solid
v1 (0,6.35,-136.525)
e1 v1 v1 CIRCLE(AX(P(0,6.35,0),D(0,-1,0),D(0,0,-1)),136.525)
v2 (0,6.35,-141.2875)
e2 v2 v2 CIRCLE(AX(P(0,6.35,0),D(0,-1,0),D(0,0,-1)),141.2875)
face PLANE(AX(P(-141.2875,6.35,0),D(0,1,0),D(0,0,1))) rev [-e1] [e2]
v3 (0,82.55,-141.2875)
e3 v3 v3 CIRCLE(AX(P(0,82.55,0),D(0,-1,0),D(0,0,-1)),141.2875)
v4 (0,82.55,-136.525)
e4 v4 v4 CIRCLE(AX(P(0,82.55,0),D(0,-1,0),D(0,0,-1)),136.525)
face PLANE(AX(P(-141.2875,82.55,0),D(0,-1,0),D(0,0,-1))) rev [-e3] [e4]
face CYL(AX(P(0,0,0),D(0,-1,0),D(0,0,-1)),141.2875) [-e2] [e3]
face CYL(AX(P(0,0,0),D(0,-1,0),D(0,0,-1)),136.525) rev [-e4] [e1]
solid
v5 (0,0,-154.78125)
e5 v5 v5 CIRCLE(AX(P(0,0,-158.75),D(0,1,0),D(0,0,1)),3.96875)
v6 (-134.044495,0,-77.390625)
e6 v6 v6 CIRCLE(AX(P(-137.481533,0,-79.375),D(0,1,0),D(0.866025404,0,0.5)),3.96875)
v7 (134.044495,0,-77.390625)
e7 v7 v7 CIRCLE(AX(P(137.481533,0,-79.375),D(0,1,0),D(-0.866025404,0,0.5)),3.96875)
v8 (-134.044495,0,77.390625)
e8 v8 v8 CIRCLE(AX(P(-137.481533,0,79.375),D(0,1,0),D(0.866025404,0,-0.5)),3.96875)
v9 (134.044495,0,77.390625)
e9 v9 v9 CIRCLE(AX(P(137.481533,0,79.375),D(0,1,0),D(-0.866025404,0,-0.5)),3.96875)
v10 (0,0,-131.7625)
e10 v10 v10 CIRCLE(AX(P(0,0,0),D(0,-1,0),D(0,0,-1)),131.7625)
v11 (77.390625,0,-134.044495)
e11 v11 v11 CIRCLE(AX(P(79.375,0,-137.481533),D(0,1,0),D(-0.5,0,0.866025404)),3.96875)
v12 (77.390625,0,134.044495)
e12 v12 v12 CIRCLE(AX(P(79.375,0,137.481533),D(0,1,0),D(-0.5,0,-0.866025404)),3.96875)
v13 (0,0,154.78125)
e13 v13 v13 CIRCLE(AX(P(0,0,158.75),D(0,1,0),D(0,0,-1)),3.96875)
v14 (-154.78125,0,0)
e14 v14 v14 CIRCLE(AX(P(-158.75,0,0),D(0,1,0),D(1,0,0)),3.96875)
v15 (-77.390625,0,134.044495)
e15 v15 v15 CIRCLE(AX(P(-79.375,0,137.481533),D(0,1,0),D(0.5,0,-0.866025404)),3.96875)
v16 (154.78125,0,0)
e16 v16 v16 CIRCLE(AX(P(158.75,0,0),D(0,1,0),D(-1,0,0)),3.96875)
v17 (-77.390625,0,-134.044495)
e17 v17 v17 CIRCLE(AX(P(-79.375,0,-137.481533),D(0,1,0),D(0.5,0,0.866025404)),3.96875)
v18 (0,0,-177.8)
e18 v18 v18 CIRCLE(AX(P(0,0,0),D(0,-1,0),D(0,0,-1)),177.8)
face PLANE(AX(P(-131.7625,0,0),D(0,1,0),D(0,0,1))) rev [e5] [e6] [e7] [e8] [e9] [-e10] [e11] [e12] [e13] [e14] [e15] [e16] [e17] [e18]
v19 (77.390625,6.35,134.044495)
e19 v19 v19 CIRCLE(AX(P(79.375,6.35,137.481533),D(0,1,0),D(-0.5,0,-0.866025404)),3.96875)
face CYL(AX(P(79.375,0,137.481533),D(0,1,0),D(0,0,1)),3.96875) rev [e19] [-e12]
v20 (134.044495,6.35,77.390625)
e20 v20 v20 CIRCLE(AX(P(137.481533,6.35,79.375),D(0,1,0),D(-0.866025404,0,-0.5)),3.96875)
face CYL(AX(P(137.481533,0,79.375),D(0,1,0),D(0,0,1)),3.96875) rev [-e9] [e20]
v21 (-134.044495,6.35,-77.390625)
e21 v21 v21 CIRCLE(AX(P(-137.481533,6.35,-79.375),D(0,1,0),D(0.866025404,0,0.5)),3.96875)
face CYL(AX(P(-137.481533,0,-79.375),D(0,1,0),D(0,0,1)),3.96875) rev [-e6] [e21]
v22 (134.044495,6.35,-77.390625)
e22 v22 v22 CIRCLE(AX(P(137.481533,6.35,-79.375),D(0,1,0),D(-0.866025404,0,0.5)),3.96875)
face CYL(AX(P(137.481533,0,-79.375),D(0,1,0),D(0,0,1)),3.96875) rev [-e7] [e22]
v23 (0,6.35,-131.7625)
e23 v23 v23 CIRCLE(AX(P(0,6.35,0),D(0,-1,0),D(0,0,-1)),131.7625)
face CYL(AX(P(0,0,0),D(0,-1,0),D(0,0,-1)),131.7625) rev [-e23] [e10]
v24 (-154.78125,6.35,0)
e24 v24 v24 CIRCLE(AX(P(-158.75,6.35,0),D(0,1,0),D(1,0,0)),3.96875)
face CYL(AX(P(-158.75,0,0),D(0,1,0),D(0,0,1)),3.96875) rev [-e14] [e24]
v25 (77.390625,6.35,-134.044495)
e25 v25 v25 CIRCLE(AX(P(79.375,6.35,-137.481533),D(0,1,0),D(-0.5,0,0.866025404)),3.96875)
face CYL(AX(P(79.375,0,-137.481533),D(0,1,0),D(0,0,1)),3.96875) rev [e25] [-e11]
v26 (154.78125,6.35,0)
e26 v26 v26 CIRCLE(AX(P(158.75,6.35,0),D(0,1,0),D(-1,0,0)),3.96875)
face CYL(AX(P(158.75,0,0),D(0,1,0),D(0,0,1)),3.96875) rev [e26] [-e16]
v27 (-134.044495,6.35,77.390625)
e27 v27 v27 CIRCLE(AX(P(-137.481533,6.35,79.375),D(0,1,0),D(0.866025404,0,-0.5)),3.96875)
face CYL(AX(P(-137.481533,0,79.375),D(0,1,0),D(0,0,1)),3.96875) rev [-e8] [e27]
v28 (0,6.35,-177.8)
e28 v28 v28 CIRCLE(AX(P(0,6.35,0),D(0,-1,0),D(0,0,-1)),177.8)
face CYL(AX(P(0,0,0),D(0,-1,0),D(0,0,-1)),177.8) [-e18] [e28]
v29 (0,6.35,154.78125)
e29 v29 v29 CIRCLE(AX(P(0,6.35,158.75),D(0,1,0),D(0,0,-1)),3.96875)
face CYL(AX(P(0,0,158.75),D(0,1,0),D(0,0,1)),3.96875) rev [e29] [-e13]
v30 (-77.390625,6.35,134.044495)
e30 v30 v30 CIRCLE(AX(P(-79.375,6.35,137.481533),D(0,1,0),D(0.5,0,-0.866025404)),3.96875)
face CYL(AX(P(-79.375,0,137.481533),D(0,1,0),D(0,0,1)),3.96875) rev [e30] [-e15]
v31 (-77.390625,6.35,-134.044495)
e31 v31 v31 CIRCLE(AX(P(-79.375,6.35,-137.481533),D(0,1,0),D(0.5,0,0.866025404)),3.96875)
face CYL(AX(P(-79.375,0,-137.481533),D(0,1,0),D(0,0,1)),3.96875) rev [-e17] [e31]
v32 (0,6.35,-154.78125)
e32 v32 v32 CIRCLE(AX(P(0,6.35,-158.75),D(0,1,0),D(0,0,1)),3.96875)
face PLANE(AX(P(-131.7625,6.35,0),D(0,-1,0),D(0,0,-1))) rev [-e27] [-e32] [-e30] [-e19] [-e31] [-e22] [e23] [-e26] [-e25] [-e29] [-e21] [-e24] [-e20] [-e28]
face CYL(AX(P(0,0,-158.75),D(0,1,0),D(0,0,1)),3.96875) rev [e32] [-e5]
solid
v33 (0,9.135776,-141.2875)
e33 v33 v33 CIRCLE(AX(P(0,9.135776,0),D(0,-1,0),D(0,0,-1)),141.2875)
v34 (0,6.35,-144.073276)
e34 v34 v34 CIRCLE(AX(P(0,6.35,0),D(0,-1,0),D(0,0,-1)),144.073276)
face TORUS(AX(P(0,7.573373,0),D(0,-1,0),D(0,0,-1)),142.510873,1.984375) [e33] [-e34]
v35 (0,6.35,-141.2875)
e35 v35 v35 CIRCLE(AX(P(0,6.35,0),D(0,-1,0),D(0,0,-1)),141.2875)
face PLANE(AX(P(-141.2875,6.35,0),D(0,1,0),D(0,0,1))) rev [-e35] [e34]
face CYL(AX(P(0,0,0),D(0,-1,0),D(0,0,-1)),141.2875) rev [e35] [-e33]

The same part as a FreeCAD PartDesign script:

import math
import FreeCAD as App
import Part
import Sketcher
from FreeCAD import Vector
Q = App.Units.Quantity


def add_polygon(sketch, points):
    """Adds a closed chain of lines whose ends are joined by coincident constraints."""
    first, n = sketch.GeometryCount, len(points)
    for a, b in zip(points, points[1:] + points[:1]):
        sketch.addGeometry(Part.LineSegment(App.Vector(*a, 0), App.Vector(*b, 0)), False)
    for i in range(n):
        sketch.addConstraint(Sketcher.Constraint("Coincident", first + i, 2, first + (i + 1) % n, 1))

doc = App.newDocument("Part")
params = doc.addObject("Spreadsheet::Sheet", "Params")
for row, (alias, value) in enumerate([
    ("sketch1_height", "0.25 in"),
    ("sketch1_width", "1.8125 in"),
    ("revolution_angle", "360 deg"),
    ("sketch2_diameter", "0.3125 in"),
    ("sketch3_height", "3 in"),
    ("sketch3_width", "0.1875 in"),
    ("revolution2_angle", "360 deg"),
    ("sketch4_radius", "0.078125 in"),
    ("revolution3_angle", "360 deg"),
], start=1):
    params.set(f"A{row}", alias)
    params.set(f"B{row}", "=" + value)
    params.setAlias(f"B{row}", alias)

body = doc.addObject("PartDesign::Body", "Body")

# Sketch on XY plane
sketch1 = body.newObject("Sketcher::SketchObject", "Sketch")
sketch1.AttachmentSupport = (doc.getObject("XY_Plane"), [""])
sketch1.MapMode = "FlatFace"
add_polygon(sketch1, [(-178, 6), (-178, 0), (-132, 0), (-132, 6)])  # lines 0-3
sketch1.addConstraint(Sketcher.Constraint("Vertical", 0))
sketch1.addConstraint(Sketcher.Constraint("Horizontal", 1))
sketch1.addConstraint(Sketcher.Constraint("Vertical", 2))
sketch1.addConstraint(Sketcher.Constraint("Horizontal", 3))
sketch1.addConstraint(Sketcher.Constraint("PointOnObject", 0, 2, -1))
sketch1.addConstraint(Sketcher.Constraint("DistanceX", 0, 2, -1, 1, Q("7 in")))
sketch1.addConstraint(Sketcher.Constraint("DistanceY", 0, 2, 0, 1, Q("0.25 in")))
sketch1.addConstraint(Sketcher.Constraint("DistanceX", 1, 1, 1, 2, Q("1.8125 in")))
sketch1.setExpression("Constraints[10]", "Params.sketch1_height")
sketch1.setExpression("Constraints[11]", "Params.sketch1_width")
revolution = body.newObject("PartDesign::Revolution", "Revolution")
revolution.Profile = sketch1
revolution.ReferenceAxis = (sketch1, ["V_Axis"])
revolution.setExpression("Angle", "Params.revolution_angle")

# Sketch on XZ plane
sketch2 = body.newObject("Sketcher::SketchObject", "Sketch001")
sketch2.AttachmentSupport = (doc.getObject("XZ_Plane"), [""])
sketch2.MapMode = "FlatFace"
sketch2.AttachmentOffset = App.Placement(Vector(0, 0, -0.25 * 25.4), App.Rotation())
sketch2.addGeometry(Part.Circle(Vector(0, -158.8, 0), Vector(0, 0, 1), 4), False)
sketch2.addConstraint(Sketcher.Constraint("PointOnObject", 0, 3, -2))
sketch2.addConstraint(Sketcher.Constraint("Diameter", 0, Q("0.3125 in")))
sketch2.addConstraint(Sketcher.Constraint("DistanceY", 0, 3, -1, 1, Q("6.25 in")))
sketch2.setExpression("Constraints[1]", "Params.sketch2_diameter")
pocket1 = body.newObject("PartDesign::Pocket", "Pocket")
pocket1.Profile = sketch2
pocket1.Type = "ThroughAll"
pocket1.Reversed = True
doc.recompute()

polarpattern = body.newObject("PartDesign::PolarPattern", "PolarPattern")
polarpattern.Originals = [pocket1]
polarpattern.Axis = (doc.getObject("Y_Axis"), [""])
polarpattern.Angle = 360
polarpattern.Occurrences = 12
body.Tip = polarpattern
body2 = doc.addObject("PartDesign::Body", "Body001")

# Sketch on XY plane
sketch3 = body2.newObject("Sketcher::SketchObject", "Sketch002")
sketch3.AttachmentSupport = (doc.getObject("XY_Plane001"), [""])
sketch3.MapMode = "FlatFace"
add_polygon(sketch3, [(-141.3, 82.5), (-141.3, 6.3), (-136.5, 6.3), (-136.5, 82.5)])  # lines 0-3
sketch3.addConstraint(Sketcher.Constraint("Vertical", 0))
sketch3.addConstraint(Sketcher.Constraint("Horizontal", 1))
sketch3.addConstraint(Sketcher.Constraint("Vertical", 2))
sketch3.addConstraint(Sketcher.Constraint("Horizontal", 3))
sketch3.addConstraint(Sketcher.Constraint("DistanceY", 0, 2, 0, 1, Q("3 in")))
sketch3.addConstraint(Sketcher.Constraint("DistanceX", 1, 1, 1, 2, Q("0.1875 in")))
sketch3.addConstraint(Sketcher.Constraint("DistanceY", -1, 1, 0, 2, Q("0.25 in")))
sketch3.addConstraint(Sketcher.Constraint("DistanceX", 0, 2, -1, 1, Q("5.5625 in")))
sketch3.setExpression("Constraints[8]", "Params.sketch3_height")
sketch3.setExpression("Constraints[9]", "Params.sketch3_width")
revolution2 = body2.newObject("PartDesign::Revolution", "Revolution001")
revolution2.Profile = sketch3
revolution2.ReferenceAxis = (sketch3, ["V_Axis"])
revolution2.setExpression("Angle", "Params.revolution2_angle")
body3 = doc.addObject("PartDesign::Body", "Body002")

# Sketch on XY plane
sketch4 = body3.newObject("Sketcher::SketchObject", "Sketch003")
sketch4.AttachmentSupport = (doc.getObject("XY_Plane002"), [""])
sketch4.MapMode = "FlatFace"
sketch4.addGeometry(Part.LineSegment(Vector(-144.1, 6.3, 0), Vector(-141.3, 6.3, 0)), False)
sketch4.addGeometry(Part.LineSegment(Vector(-141.3, 6.3, 0), Vector(-141.3, 9.1, 0)), False)
sketch4.addGeometry(Part.ArcOfCircle(Part.Circle(Vector(-142.5, 7.6, 0), Vector(0, 0, 1), 2), math.radians(52), math.radians(218)), False)
sketch4.addConstraint(Sketcher.Constraint("Coincident", 0, 2, 1, 1))
sketch4.addConstraint(Sketcher.Constraint("Coincident", 1, 2, 2, 1))
sketch4.addConstraint(Sketcher.Constraint("Coincident", 2, 2, 0, 1))
sketch4.addConstraint(Sketcher.Constraint("Horizontal", 0))
sketch4.addConstraint(Sketcher.Constraint("Vertical", 1))
sketch4.addConstraint(Sketcher.Constraint("Equal", 0, 1))
sketch4.addConstraint(Sketcher.Constraint("Radius", 2, Q("0.078125 in")))
sketch4.addConstraint(Sketcher.Constraint("DistanceY", -1, 1, 0, 2, Q("0.25 in")))
sketch4.addConstraint(Sketcher.Constraint("DistanceX", 0, 2, -1, 1, Q("5.5625 in")))
sketch4.addConstraint(Sketcher.Constraint("DistanceX", 0, 1, 0, 2, 2.785776))
sketch4.setExpression("Constraints[6]", "Params.sketch4_radius")
revolution3 = body3.newObject("PartDesign::Revolution", "Revolution002")
revolution3.Profile = sketch4
revolution3.ReferenceAxis = (sketch4, ["V_Axis"])
revolution3.setExpression("Angle", "Params.revolution3_angle")

doc.recompute()
